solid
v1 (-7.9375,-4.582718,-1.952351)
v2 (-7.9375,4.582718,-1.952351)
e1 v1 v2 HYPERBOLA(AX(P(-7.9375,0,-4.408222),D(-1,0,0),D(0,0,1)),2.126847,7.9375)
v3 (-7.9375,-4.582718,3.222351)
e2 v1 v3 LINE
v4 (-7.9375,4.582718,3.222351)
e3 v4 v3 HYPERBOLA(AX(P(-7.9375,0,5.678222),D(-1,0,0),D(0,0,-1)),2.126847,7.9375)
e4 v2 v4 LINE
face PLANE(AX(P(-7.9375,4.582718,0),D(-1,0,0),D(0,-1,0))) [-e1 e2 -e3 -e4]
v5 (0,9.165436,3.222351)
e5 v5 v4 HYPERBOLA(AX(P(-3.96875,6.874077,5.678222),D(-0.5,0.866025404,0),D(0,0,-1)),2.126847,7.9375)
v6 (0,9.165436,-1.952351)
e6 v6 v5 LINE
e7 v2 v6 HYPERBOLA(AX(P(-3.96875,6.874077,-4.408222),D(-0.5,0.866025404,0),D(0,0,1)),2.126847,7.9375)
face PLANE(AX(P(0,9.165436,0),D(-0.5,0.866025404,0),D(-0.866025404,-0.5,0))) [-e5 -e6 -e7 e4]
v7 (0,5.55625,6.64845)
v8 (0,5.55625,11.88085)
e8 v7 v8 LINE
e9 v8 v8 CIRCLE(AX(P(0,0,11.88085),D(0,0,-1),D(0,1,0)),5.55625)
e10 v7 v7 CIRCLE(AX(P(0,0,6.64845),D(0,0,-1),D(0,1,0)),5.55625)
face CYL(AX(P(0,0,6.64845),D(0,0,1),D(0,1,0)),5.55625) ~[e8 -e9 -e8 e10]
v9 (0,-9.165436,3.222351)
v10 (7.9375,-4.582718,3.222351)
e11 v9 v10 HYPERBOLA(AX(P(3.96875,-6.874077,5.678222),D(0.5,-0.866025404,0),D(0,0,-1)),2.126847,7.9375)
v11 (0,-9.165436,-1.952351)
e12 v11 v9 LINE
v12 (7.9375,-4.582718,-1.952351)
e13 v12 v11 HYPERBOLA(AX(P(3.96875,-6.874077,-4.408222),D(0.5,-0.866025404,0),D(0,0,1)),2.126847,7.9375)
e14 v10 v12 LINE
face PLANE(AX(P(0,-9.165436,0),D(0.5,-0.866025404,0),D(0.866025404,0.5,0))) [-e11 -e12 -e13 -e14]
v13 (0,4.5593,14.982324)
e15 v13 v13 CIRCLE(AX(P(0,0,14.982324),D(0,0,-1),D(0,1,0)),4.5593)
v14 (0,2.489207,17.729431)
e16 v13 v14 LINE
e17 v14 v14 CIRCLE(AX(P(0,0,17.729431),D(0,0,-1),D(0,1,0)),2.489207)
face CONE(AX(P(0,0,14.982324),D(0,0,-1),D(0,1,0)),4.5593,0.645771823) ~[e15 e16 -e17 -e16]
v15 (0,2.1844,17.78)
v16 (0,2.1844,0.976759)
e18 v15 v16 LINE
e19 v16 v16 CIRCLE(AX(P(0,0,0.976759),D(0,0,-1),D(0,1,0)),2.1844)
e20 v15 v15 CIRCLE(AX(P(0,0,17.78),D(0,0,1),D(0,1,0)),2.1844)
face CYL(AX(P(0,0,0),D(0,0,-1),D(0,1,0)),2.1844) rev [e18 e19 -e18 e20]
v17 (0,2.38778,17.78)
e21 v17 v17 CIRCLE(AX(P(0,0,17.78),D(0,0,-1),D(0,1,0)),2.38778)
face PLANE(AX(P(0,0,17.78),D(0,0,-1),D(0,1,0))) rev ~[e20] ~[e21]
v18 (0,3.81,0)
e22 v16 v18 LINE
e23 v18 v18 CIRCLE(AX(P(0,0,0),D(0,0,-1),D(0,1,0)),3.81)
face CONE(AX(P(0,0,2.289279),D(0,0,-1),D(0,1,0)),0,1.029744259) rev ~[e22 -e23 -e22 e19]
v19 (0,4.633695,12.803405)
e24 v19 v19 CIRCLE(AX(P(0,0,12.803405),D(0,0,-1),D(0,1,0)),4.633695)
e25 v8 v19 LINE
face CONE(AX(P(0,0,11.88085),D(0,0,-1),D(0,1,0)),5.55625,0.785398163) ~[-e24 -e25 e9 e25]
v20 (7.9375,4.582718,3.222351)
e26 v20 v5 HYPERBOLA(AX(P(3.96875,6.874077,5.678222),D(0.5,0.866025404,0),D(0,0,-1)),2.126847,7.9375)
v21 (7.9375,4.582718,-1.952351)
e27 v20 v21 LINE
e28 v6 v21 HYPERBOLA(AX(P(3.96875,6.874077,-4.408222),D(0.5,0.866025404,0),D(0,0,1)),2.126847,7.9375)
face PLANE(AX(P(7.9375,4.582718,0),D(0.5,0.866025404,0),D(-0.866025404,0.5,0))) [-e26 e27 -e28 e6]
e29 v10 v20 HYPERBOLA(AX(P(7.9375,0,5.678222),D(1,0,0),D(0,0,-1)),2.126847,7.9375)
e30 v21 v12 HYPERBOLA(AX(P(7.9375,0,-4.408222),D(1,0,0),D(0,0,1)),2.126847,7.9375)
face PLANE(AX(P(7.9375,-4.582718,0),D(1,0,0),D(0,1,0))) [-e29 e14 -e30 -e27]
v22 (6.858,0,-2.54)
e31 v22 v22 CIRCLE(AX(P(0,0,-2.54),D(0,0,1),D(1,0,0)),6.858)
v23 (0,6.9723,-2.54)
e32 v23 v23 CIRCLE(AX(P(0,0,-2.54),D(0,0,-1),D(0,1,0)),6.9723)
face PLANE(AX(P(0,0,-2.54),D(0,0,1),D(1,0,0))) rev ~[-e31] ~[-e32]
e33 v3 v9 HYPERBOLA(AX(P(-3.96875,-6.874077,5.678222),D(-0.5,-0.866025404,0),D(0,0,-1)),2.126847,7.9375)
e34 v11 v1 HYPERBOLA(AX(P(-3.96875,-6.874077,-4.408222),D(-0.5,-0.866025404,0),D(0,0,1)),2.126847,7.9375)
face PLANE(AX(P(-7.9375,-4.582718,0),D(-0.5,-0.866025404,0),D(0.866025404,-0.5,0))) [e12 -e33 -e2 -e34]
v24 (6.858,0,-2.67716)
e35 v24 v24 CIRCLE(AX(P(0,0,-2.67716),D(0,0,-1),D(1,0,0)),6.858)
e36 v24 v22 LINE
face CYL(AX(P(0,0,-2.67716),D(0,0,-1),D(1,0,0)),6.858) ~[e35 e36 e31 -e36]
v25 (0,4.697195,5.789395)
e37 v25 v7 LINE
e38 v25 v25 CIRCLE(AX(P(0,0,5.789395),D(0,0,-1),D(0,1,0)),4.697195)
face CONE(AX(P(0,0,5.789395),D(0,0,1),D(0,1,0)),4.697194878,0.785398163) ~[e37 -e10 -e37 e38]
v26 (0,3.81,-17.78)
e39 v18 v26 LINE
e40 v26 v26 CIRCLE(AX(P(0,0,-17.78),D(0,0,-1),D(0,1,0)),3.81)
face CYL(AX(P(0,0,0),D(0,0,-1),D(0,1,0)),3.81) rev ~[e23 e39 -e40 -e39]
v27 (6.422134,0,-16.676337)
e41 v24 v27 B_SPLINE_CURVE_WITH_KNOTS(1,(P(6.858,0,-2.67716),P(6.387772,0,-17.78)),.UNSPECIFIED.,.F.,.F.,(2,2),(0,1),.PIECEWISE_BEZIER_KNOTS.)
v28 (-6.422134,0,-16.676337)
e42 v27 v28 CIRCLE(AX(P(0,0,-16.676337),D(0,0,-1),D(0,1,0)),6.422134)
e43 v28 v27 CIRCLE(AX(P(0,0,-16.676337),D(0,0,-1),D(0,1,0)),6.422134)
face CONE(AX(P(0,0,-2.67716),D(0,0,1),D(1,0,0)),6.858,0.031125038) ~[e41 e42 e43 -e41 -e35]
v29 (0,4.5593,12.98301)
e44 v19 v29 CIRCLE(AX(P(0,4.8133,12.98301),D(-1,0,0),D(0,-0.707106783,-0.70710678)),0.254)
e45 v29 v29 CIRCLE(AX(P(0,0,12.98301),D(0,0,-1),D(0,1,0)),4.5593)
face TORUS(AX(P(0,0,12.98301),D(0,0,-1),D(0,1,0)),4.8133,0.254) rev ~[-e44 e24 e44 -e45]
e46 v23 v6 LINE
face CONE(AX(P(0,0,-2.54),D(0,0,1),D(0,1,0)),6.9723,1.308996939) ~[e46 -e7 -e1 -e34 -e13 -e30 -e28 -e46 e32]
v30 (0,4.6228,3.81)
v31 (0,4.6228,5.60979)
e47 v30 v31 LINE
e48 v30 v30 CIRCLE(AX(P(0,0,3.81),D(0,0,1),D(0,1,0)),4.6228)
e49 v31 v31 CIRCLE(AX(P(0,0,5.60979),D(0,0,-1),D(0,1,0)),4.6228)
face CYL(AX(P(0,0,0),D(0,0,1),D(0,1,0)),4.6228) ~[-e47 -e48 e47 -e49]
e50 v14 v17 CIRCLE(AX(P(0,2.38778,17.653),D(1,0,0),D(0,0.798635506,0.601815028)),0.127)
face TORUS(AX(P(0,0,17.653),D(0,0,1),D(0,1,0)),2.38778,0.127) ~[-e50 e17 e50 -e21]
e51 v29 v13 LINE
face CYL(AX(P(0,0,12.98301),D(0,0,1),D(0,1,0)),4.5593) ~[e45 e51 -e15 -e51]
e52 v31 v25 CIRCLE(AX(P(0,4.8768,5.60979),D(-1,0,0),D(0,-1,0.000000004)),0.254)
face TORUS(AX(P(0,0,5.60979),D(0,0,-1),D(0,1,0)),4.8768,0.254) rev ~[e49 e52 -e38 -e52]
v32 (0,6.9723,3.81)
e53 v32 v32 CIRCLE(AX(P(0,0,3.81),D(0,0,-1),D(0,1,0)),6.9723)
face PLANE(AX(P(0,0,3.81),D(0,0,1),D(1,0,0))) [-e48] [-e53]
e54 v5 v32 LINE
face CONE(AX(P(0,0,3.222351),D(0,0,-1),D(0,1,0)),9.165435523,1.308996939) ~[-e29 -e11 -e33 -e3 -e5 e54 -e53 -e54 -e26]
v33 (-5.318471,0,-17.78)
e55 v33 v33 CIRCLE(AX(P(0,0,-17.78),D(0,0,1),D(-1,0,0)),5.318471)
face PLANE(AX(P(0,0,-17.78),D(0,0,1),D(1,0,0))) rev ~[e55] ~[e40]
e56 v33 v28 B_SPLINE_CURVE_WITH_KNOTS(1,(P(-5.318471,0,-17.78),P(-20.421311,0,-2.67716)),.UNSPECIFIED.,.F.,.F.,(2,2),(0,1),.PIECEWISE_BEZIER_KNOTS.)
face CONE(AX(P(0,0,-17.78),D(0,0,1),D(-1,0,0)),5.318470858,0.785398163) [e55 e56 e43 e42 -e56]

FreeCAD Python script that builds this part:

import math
import FreeCAD as App
import Part
import Sketcher
from FreeCAD import Vector
Q = App.Units.Quantity

doc = App.newDocument("Part")
body = doc.addObject("PartDesign::Body", "Body")

sketch1 = body.newObject("Sketcher::SketchObject", "Sketch")
sketch1.AttachmentSupport = (doc.getObject("YZ_Plane"), [""])
sketch1.MapMode = "FlatFace"
sketch1.addGeometry([
    Part.LineSegment(Vector(0, 17.78, 0), Vector(0, 0, 0)),
    Part.LineSegment(Vector(0, 0, 0), Vector(4.62, 0, 0)),
    Part.LineSegment(Vector(4.62, 0, 0), Vector(4.62, 5.61, 0)),
    Part.ArcOfCircle(Part.Circle(Vector(4.88, 5.61, 0), Vector(0, 0, 1), 0.25), math.radians(135), math.radians(180)),
    Part.LineSegment(Vector(4.7, 5.79, 0), Vector(5.56, 6.65, 0)),
    Part.LineSegment(Vector(5.56, 6.65, 0), Vector(5.56, 11.88, 0)),
    Part.LineSegment(Vector(5.56, 11.88, 0), Vector(4.63, 12.8, 0)),
    Part.ArcOfCircle(Part.Circle(Vector(4.81, 12.98, 0), Vector(0, 0, 1), 0.25), math.radians(-180), math.radians(-135)),
    Part.LineSegment(Vector(4.56, 12.98, 0), Vector(4.56, 14.98, 0)),
    Part.LineSegment(Vector(4.56, 14.98, 0), Vector(2.49, 17.73, 0)),
    Part.ArcOfCircle(Part.Circle(Vector(2.39, 17.65, 0), Vector(0, 0, 1), 0.13), math.radians(37), math.radians(90)),
    Part.LineSegment(Vector(2.39, 17.78, 0), Vector(0, 17.78, 0)),
], False)
sketch1.addConstraint([
    Sketcher.Constraint("Coincident", 0, 2, 1, 1),
    Sketcher.Constraint("Coincident", 1, 2, 2, 1),
    Sketcher.Constraint("Tangent", 2, 2, 3, 2),
    Sketcher.Constraint("Tangent", 3, 1, 4, 1),
    Sketcher.Constraint("Coincident", 4, 2, 5, 1),
    Sketcher.Constraint("Coincident", 5, 2, 6, 1),
    Sketcher.Constraint("Tangent", 6, 2, 7, 2),
    Sketcher.Constraint("Tangent", 7, 1, 8, 1),
    Sketcher.Constraint("Coincident", 8, 2, 9, 1),
    Sketcher.Constraint("Tangent", 9, 2, 10, 1),
    Sketcher.Constraint("Tangent", 10, 2, 11, 1),
    Sketcher.Constraint("Coincident", 11, 2, 0, 1),
    Sketcher.Constraint("Vertical", 0),
    Sketcher.Constraint("Horizontal", 1),
    Sketcher.Constraint("Vertical", 2),
    Sketcher.Constraint("Vertical", 5),
    Sketcher.Constraint("Vertical", 8),
    Sketcher.Constraint("Horizontal", 11),
    Sketcher.Constraint("Coincident", 0, 2, -1, 1),
    Sketcher.Constraint("Equal", 3, 7),
    Sketcher.Constraint("Perpendicular", 4, 6),
    Sketcher.Constraint("Radius", 3, Q("0.01 in")),
    Sketcher.Constraint("DistanceY", 0, 2, 0, 1, Q("0.7 in")),
    Sketcher.Constraint("Angle", 4, Q("45 deg")),
    Sketcher.Constraint("Angle", 9, Q("127 deg")),
    Sketcher.Constraint("Radius", 10, Q("0.005 in")),
    Sketcher.Constraint("DistanceX", 1, 1, 1, 2, Q("0.182 in")),
    Sketcher.Constraint("DistanceY", 5, 1, 5, 2, Q("0.206 in")),
    Sketcher.Constraint("DistanceX", -1, 1, 4, 2, Q("0.21875 in")),
    Sketcher.Constraint("DistanceX", -1, 1, 7, 3, Q("0.1895 in")),
    Sketcher.Constraint("DistanceX", 11, 2, 11, 1, Q("2.38778 mm")),
    Sketcher.Constraint("DistanceY", 2, 1, 2, 2, Q("5.60979 mm")),
])
revolution = body.newObject("PartDesign::Revolution", "Revolution")
revolution.Profile = sketch1
revolution.ReferenceAxis = (sketch1, ["V_Axis"])
revolution.Angle = 360

sketch2 = body.newObject("Sketcher::SketchObject", "Sketch001")
sketch2.AttachmentSupport = (doc.getObject("XY_Plane"), [""])
sketch2.MapMode = "FlatFace"
sketch2.addGeometry([
    Part.LineSegment(Vector(0, 9, 0), Vector(-8, 5, 0)),
    Part.LineSegment(Vector(-8, 5, 0), Vector(-8, -5, 0)),
    Part.LineSegment(Vector(-8, -5, 0), Vector(0, -9, 0)),
    Part.LineSegment(Vector(0, -9, 0), Vector(8, -5, 0)),
    Part.LineSegment(Vector(8, -5, 0), Vector(8, 5, 0)),
    Part.LineSegment(Vector(8, 5, 0), Vector(0, 9, 0)),
], False)
sketch2.addConstraint([
    Sketcher.Constraint("Coincident", 0, 2, 1, 1),
    Sketcher.Constraint("Coincident", 1, 2, 2, 1),
    Sketcher.Constraint("Coincident", 2, 2, 3, 1),
    Sketcher.Constraint("Coincident", 3, 2, 4, 1),
    Sketcher.Constraint("Coincident", 4, 2, 5, 1),
    Sketcher.Constraint("Coincident", 5, 2, 0, 1),
    Sketcher.Constraint("Vertical", 1),
    Sketcher.Constraint("Vertical", 4),
    Sketcher.Constraint("Symmetric", 0, 2, 3, 2, -1, 1),
    Sketcher.Constraint("Symmetric", 2, 2, 5, 2, -1, 1),
    Sketcher.Constraint("PointOnObject", 2, 2, -2),
    Sketcher.Constraint("Parallel", 2, 5),
    Sketcher.Constraint("Horizontal", 1, 2, 3, 2),
    Sketcher.Constraint("Angle", 0, Q("-150 deg")),
    Sketcher.Constraint("DistanceX", 0, 2, -1, 1, Q("0.3125 in")),
    Sketcher.Constraint("DistanceY", 1, 2, 1, 1, Q("9.165436 mm")),
])
pad1 = body.newObject("PartDesign::Pad", "Pad")
pad1.Profile = sketch2
pad1.Type = "TwoLengths"
pad1.Length = Q("0.15 in")
pad1.Length2 = Q("0.1 in")

sketch3 = body.newObject("Sketcher::SketchObject", "Sketch002")
sketch3.AttachmentSupport = (doc.getObject("YZ_Plane"), [""])
sketch3.MapMode = "FlatFace"
sketch3.addGeometry([
    Part.LineSegment(Vector(11.4, -2.5, 0), Vector(11.4, 3.8, 0)),
    Part.LineSegment(Vector(11.4, 3.8, 0), Vector(7, 3.8, 0)),
    Part.LineSegment(Vector(7, 3.8, 0), Vector(9.2, 3.2, 0)),
    Part.LineSegment(Vector(9.2, 3.2, 0), Vector(9.2, -2, 0)),
    Part.LineSegment(Vector(9.2, -2, 0), Vector(7, -2.5, 0)),
    Part.LineSegment(Vector(7, -2.5, 0), Vector(11.4, -2.5, 0)),
], False)
sketch3.addConstraint([
    Sketcher.Constraint("Coincident", 0, 2, 1, 1),
    Sketcher.Constraint("Coincident", 1, 2, 2, 1),
    Sketcher.Constraint("Coincident", 2, 2, 3, 1),
    Sketcher.Constraint("Coincident", 3, 2, 4, 1),
    Sketcher.Constraint("Coincident", 4, 2, 5, 1),
    Sketcher.Constraint("Coincident", 5, 2, 0, 1),
    Sketcher.Constraint("Vertical", 0),
    Sketcher.Constraint("Horizontal", 1),
    Sketcher.Constraint("Vertical", 3),
    Sketcher.Constraint("Horizontal", 5),
    Sketcher.Constraint("Vertical", 1, 2, 4, 2),
    Sketcher.Constraint("Equal", 2, 4),
    Sketcher.Constraint("Angle", 2, Q("-15 deg")),
    Sketcher.Constraint("DistanceY", 0, 1, 0, 2, Q("0.25 in")),
    Sketcher.Constraint("DistanceY", 4, 2, -1, 1, Q("0.1 in")),
    Sketcher.Constraint("DistanceX", -1, 1, 1, 2, Q("0.2745 in")),
    Sketcher.Constraint("Distance", 2, Q("2.270501 mm")),
    Sketcher.Constraint("DistanceX", 1, 2, 1, 1, Q("4.386271 mm")),
])
groove = body.newObject("PartDesign::Groove", "Groove")
groove.Profile = sketch3
groove.ReferenceAxis = (sketch3, ["V_Axis"])
groove.Angle = 360
body2 = doc.addObject("PartDesign::Body", "Body001")

sketch4 = body2.newObject("Sketcher::SketchObject", "Sketch003")
sketch4.AttachmentSupport = (doc.getObject("XY_Plane001"), [""])
sketch4.MapMode = "FlatFace"
sketch4.AttachmentOffset = App.Placement(Vector(0, 0, -0.1054 * 25.4), App.Rotation())
sketch4.addGeometry(Part.Circle(Vector(0, 0, 0), Vector(0, 0, 1), 7), False)
sketch4.addConstraint([
    Sketcher.Constraint("Coincident", 0, 3, -1, 1),
    Sketcher.Constraint("Diameter", 0, Q("0.54 in")),
])
pad2 = body2.newObject("PartDesign::Pad", "Pad001")
pad2.Profile = sketch4
pad2.Length = Q("0.5946 in")
pad2.Reversed = True
pad2.TaperAngle = -1.783333

sketch5 = body2.newObject("Sketcher::SketchObject", "Sketch004")
sketch5.AttachmentSupport = (doc.getObject("XY_Plane001"), [""])
sketch5.MapMode = "FlatFace"
sketch5.AttachmentOffset = App.Placement(Vector(0, 0, -0.7 * 25.4), App.Rotation())
sketch5.addGeometry([
    Part.LineSegment(Vector(28, 30, 0), Vector(28, -30, 0)),
    Part.LineSegment(Vector(28, -30, 0), Vector(-28, -30, 0)),
    Part.LineSegment(Vector(-28, -30, 0), Vector(-28, 30, 0)),
    Part.LineSegment(Vector(-28, 30, 0), Vector(28, 30, 0)),
    Part.Circle(Vector(0, 0, 0), Vector(0, 0, 1), 5),
], False)
sketch5.addConstraint([
    Sketcher.Constraint("Coincident", 0, 2, 1, 1),
    Sketcher.Constraint("Coincident", 1, 2, 2, 1),
    Sketcher.Constraint("Coincident", 2, 2, 3, 1),
    Sketcher.Constraint("Coincident", 3, 2, 0, 1),
    Sketcher.Constraint("Vertical", 0),
    Sketcher.Constraint("Horizontal", 1),
    Sketcher.Constraint("Vertical", 2),
    Sketcher.Constraint("Horizontal", 3),
    Sketcher.Constraint("Coincident", 4, 3, -1, 1),
    Sketcher.Constraint("Symmetric", 0, 2, 2, 2, -1, 1),
    Sketcher.Constraint("Diameter", 4, Q("10.636942 mm")),
    Sketcher.Constraint("DistanceX", 1, 2, 1, 1, Q("56.69 mm")),
    Sketcher.Constraint("DistanceY", 0, 2, 0, 1, Q("59.144 mm")),
])
pocket1 = body2.newObject("PartDesign::Pocket", "Pocket")
pocket1.Profile = sketch5
pocket1.Length = Q("0.5946 in")
pocket1.Reversed = True
pocket1.TaperAngle = 45
body.AllowCompound = True
doc.recompute()

boolean = body.newObject("PartDesign::Boolean", "Boolean")
boolean.Type = "Fuse"
boolean.addObjects([body2])

sketch6 = body.newObject("Sketcher::SketchObject", "Sketch005")
sketch6.AttachmentSupport = (doc.getObject("XY_Plane"), [""])
sketch6.MapMode = "FlatFace"
sketch6.AttachmentOffset = App.Placement(Vector(0, 0, -0.1054 * 25.4), App.Rotation())
sketch6.addGeometry(Part.Circle(Vector(0, 0, 0), Vector(0, 0, 1), 7), False)
sketch6.addConstraint([
    Sketcher.Constraint("Coincident", 0, 3, -1, 1),
    Sketcher.Constraint("Diameter", 0, Q("0.54 in")),
])
pad3 = body.newObject("PartDesign::Pad", "Pad002")
pad3.Profile = sketch6
pad3.Length = Q("0.0054 in")

sketch7 = body.newObject("Sketcher::SketchObject", "Sketch006")
sketch7.AttachmentSupport = (doc.getObject("YZ_Plane"), [""])
sketch7.MapMode = "FlatFace"
sketch7.addGeometry([
    Part.LineSegment(Vector(2.2, 17.8, 0), Vector(0, 17.8, 0)),
    Part.LineSegment(Vector(0, 17.8, 0), Vector(0, -17.8, 0)),
    Part.LineSegment(Vector(0, -17.8, 0), Vector(2.2, -17.8, 0)),
    Part.LineSegment(Vector(2.2, -17.8, 0), Vector(2.2, 17.8, 0)),
], False)
sketch7.addConstraint([
    Sketcher.Constraint("Coincident", 0, 2, 1, 1),
    Sketcher.Constraint("Coincident", 1, 2, 2, 1),
    Sketcher.Constraint("Coincident", 2, 2, 3, 1),
    Sketcher.Constraint("Coincident", 3, 2, 0, 1),
    Sketcher.Constraint("Horizontal", 0),
    Sketcher.Constraint("Vertical", 1),
    Sketcher.Constraint("Horizontal", 2),
    Sketcher.Constraint("Vertical", 3),
    Sketcher.Constraint("Symmetric", 0, 2, 1, 2, -1, 1),
    Sketcher.Constraint("DistanceY", 1, 2, 1, 1, Q("1.4 in")),
    Sketcher.Constraint("DistanceX", 0, 2, 0, 1, Q("0.086 in")),
])
groove2 = body.newObject("PartDesign::Groove", "Groove001")
groove2.Profile = sketch7
groove2.ReferenceAxis = (sketch7, ["V_Axis"])
groove2.Angle = 360

sketch8 = body.newObject("Sketcher::SketchObject", "Sketch007")
sketch8.AttachmentSupport = (doc.getObject("YZ_Plane"), [""])
sketch8.MapMode = "FlatFace"
sketch8.addGeometry([
    Part.LineSegment(Vector(0, 2.3, 0), Vector(0, -17.8, 0)),
    Part.LineSegment(Vector(0, -17.8, 0), Vector(3.8, -17.8, 0)),
    Part.LineSegment(Vector(3.8, -17.8, 0), Vector(3.8, 0, 0)),
    Part.LineSegment(Vector(3.8, 0, 0), Vector(0, 2.3, 0)),
], False)
sketch8.addConstraint([
    Sketcher.Constraint("Coincident", 0, 2, 1, 1),
    Sketcher.Constraint("Coincident", 1, 2, 2, 1),
    Sketcher.Constraint("Coincident", 2, 2, 3, 1),
    Sketcher.Constraint("Coincident", 3, 2, 0, 1),
    Sketcher.Constraint("Vertical", 0),
    Sketcher.Constraint("Horizontal", 1),
    Sketcher.Constraint("Vertical", 2),
    Sketcher.Constraint("PointOnObject", 0, 2, -2),
    Sketcher.Constraint("PointOnObject", 2, 2, -1),
    Sketcher.Constraint("DistanceY", 2, 1, 2, 2, Q("0.7 in")),
    Sketcher.Constraint("Angle", 3, Q("149 deg")),
    Sketcher.Constraint("DistanceX", 1, 1, 1, 2, Q("0.15 in")),
])
groove3 = body.newObject("PartDesign::Groove", "Groove002")
groove3.Profile = sketch8
groove3.ReferenceAxis = (sketch8, ["V_Axis"])
groove3.Angle = 360

doc.recompute()
